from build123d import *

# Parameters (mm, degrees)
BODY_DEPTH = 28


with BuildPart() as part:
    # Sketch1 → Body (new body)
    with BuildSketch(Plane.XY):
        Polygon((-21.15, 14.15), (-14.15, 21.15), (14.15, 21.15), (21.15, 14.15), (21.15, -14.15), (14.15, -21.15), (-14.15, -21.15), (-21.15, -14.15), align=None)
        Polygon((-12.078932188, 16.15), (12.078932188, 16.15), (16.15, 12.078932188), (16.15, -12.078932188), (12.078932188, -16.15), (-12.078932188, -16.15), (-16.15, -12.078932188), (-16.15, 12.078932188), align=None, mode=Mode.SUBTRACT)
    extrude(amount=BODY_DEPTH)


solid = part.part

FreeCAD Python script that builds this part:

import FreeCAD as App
import Part
import Sketcher
from FreeCAD import Vector
Q = App.Units.Quantity

doc = App.newDocument("Part")
body = doc.addObject("PartDesign::Body", "Body")

# Sketch on XY plane
sketch1 = body.newObject("Sketcher::SketchObject", "Sketch")
sketch1.AttachmentSupport = (doc.getObject("XY_Plane"), [""])
sketch1.MapMode = "FlatFace"
sketch1.addGeometry([
    Part.LineSegment(Vector(-14, 21, 0), Vector(-21, 14, 0)),  # 0
    Part.LineSegment(Vector(-21, 14, 0), Vector(-21, -14, 0)),  # 1
    Part.LineSegment(Vector(-21, -14, 0), Vector(-14, -21, 0)),  # 2
    Part.LineSegment(Vector(-14, -21, 0), Vector(14, -21, 0)),  # 3
    Part.LineSegment(Vector(14, -21, 0), Vector(21, -14, 0)),  # 4
    Part.LineSegment(Vector(21, -14, 0), Vector(21, 14, 0)),  # 5
    Part.LineSegment(Vector(21, 14, 0), Vector(14, 21, 0)),  # 6
    Part.LineSegment(Vector(14, 21, 0), Vector(-14, 21, 0)),  # 7
    Part.LineSegment(Vector(-12, 16, 0), Vector(12, 16, 0)),  # 8
    Part.LineSegment(Vector(12, 16, 0), Vector(16, 12, 0)),  # 9
    Part.LineSegment(Vector(16, 12, 0), Vector(16, -12, 0)),  # 10
    Part.LineSegment(Vector(16, -12, 0), Vector(12, -16, 0)),  # 11
    Part.LineSegment(Vector(12, -16, 0), Vector(-12, -16, 0)),  # 12
    Part.LineSegment(Vector(-12, -16, 0), Vector(-16, -12, 0)),  # 13
    Part.LineSegment(Vector(-16, -12, 0), Vector(-16, 12, 0)),  # 14
    Part.LineSegment(Vector(-16, 12, 0), Vector(-12, 16, 0)),  # 15
], False)
sketch1.addConstraint([
    Sketcher.Constraint("Coincident", 0, 2, 1, 1),
    Sketcher.Constraint("Coincident", 1, 2, 2, 1),
    Sketcher.Constraint("Coincident", 2, 2, 3, 1),
    Sketcher.Constraint("Coincident", 3, 2, 4, 1),
    Sketcher.Constraint("Coincident", 4, 2, 5, 1),
    Sketcher.Constraint("Coincident", 5, 2, 6, 1),
    Sketcher.Constraint("Coincident", 6, 2, 7, 1),
    Sketcher.Constraint("Coincident", 7, 2, 0, 1),
    Sketcher.Constraint("Coincident", 8, 2, 9, 1),
    Sketcher.Constraint("Coincident", 9, 2, 10, 1),
    Sketcher.Constraint("Coincident", 10, 2, 11, 1),
    Sketcher.Constraint("Coincident", 11, 2, 12, 1),
    Sketcher.Constraint("Coincident", 12, 2, 13, 1),
    Sketcher.Constraint("Coincident", 13, 2, 14, 1),
    Sketcher.Constraint("Coincident", 14, 2, 15, 1),
    Sketcher.Constraint("Coincident", 15, 2, 8, 1),
    Sketcher.Constraint("Vertical", 1),
    Sketcher.Constraint("Horizontal", 3),
    Sketcher.Constraint("Vertical", 5),
    Sketcher.Constraint("Horizontal", 7),
    Sketcher.Constraint("Horizontal", 8),
    Sketcher.Constraint("Vertical", 10),
    Sketcher.Constraint("Horizontal", 12),
    Sketcher.Constraint("Vertical", 14),
    Sketcher.Constraint("Symmetric", 0, 2, 4, 2, -1, 1),
    Sketcher.Constraint("Symmetric", 2, 2, 6, 2, -1, 1),
    Sketcher.Constraint("Symmetric", 8, 2, 12, 2, -1, 1),
    Sketcher.Constraint("Symmetric", 9, 2, 13, 2, -1, 1),
    Sketcher.Constraint("Perpendicular", 0, 2),
    Sketcher.Constraint("Perpendicular", 2, 4),
    Sketcher.Constraint("Perpendicular", 4, 6),
    Sketcher.Constraint("Parallel", 6, 9),
    Sketcher.Constraint("Perpendicular", 9, 11),
    Sketcher.Constraint("Perpendicular", 13, 15),
    Sketcher.Constraint("Horizontal", 1, 2, 4, 2),
    Sketcher.Constraint("Horizontal", 10, 2, 13, 2),
    Sketcher.Constraint("Horizontal", 9, 2, 14, 2),
    Sketcher.Constraint("Vertical", 3, 2, 6, 2),
    Sketcher.Constraint("Equal", 7, 1),
    Sketcher.Constraint("Equal", 12, 10),
    Sketcher.Constraint("DistanceX", 3, 1, 3, 2, Q("28.3 mm")),
    Sketcher.Constraint("DistanceX", 1, 2, 2, 2, Q("7 mm")),
    Sketcher.Constraint("DistanceY", 8, 2, 6, 2, Q("5 mm")),
    Sketcher.Constraint("Distance", 9, Q("5.757359 mm")),
])
pad1 = body.newObject("PartDesign::Pad", "Pad")
pad1.Profile = sketch1
pad1.Length = 28

doc.recompute()
